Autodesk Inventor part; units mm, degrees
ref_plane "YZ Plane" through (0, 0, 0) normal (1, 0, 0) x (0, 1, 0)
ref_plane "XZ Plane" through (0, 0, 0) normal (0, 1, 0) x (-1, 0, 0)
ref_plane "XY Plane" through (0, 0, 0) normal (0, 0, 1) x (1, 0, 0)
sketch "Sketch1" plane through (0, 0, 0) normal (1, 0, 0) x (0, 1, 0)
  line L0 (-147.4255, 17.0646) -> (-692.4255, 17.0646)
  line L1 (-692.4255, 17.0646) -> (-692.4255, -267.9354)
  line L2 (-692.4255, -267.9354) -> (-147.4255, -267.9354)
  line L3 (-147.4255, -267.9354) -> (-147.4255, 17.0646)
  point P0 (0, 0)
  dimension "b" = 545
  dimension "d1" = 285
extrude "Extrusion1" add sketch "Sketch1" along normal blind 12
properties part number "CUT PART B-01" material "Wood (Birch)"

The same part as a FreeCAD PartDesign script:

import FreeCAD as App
import Part
import Sketcher

V = App.Vector

doc = App.newDocument("Part")
body = doc.addObject("PartDesign::Body", "Body")

sketch1 = body.newObject("Sketcher::SketchObject", "Sketch")
sketch1.AttachmentSupport = (doc.getObject("YZ_Plane"), [""])
sketch1.MapMode = "FlatFace"
sketch1.addGeometry([
    Part.LineSegment(V(-147.4255, -267.9354, 0), V(-147.4255, 17.0646, 0)),
    Part.LineSegment(V(-147.4255, 17.0646, 0), V(-692.4255, 17.0646, 0)),
    Part.LineSegment(V(-692.4255, 17.0646, 0), V(-692.4255, -267.9354, 0)),
    Part.LineSegment(V(-692.4255, -267.9354, 0), V(-147.4255, -267.9354, 0)),
], False)
sketch1.addConstraint([
    Sketcher.Constraint("Coincident", 0, 2, 1, 1),
    Sketcher.Constraint("Coincident", 1, 2, 2, 1),
    Sketcher.Constraint("Coincident", 2, 2, 3, 1),
    Sketcher.Constraint("Coincident", 3, 2, 0, 1),
    Sketcher.Constraint("Vertical", 0),
    Sketcher.Constraint("Horizontal", 1),
    Sketcher.Constraint("Vertical", 2),
    Sketcher.Constraint("Horizontal", 3),
    Sketcher.Constraint("DistanceX", 1, 2, 1, 1, 545.0),
    Sketcher.Constraint("DistanceY", 0, 1, 0, 2, 285.0),
    Sketcher.Constraint("DistanceX", 0, 2, -1, 1, 147.4255),
    Sketcher.Constraint("DistanceY", -1, 1, 0, 2, 17.0646),
])
pad1 = body.newObject("PartDesign::Pad", "Pad")
pad1.Profile = sketch1
pad1.Length = 12

doc.recompute()
